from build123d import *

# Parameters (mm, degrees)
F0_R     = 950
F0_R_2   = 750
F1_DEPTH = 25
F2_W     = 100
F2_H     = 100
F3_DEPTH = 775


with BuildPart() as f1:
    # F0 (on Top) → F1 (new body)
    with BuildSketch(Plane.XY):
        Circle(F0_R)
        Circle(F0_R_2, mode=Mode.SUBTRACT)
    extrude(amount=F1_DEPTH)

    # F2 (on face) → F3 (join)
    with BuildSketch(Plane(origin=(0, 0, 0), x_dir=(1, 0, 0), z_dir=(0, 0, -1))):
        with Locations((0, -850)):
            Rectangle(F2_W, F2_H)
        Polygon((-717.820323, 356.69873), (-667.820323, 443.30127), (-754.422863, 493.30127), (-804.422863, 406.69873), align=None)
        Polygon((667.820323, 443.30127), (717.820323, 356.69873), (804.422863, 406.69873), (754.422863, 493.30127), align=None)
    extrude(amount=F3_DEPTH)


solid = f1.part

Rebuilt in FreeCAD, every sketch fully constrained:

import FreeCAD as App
import Part
import Sketcher
Q = App.Units.Quantity

doc = App.newDocument("Part")
params = doc.addObject("Spreadsheet::Sheet", "Params")
for row, (alias, value) in enumerate([
    ("sketch1_diameter", "1900 mm"),
    ("sketch1_diameter2", "1500 mm"),
    ("pad1_length", "25 mm"),
    ("sketch2_width", "100 mm"),
    ("sketch2_length", "100 mm"),
    ("pad2_length", "775 mm"),
], start=1):
    params.set(f"A{row}", alias)
    params.set(f"B{row}", "=" + value)
    params.setAlias(f"B{row}", alias)

body = doc.addObject("PartDesign::Body", "Body")

sketch1 = body.newObject("Sketcher::SketchObject", "Sketch")
sketch1.AttachmentSupport = (doc.getObject("XY_Plane"), [""])
sketch1.MapMode = "FlatFace"
sketch1.addGeometry(Part.Circle(App.Vector(0, 0, 0), App.Vector(0, 0, 1), 950), False)
sketch1.addGeometry(Part.Circle(App.Vector(0, 0, 0), App.Vector(0, 0, 1), 750), False)
sketch1.addConstraint(Sketcher.Constraint("Coincident", 0, 3, -1, 1))
sketch1.addConstraint(Sketcher.Constraint("Coincident", 1, 3, -1, 1))
sketch1.addConstraint(Sketcher.Constraint("Diameter", 0, 1900.0))
sketch1.addConstraint(Sketcher.Constraint("Diameter", 1, 1500.0))
sketch1.setExpression("Constraints[2]", "Params.sketch1_diameter")
sketch1.setExpression("Constraints[3]", "Params.sketch1_diameter2")
pad1 = body.newObject("PartDesign::Pad", "Pad")
pad1.Profile = sketch1
pad1.setExpression("Length", "Params.pad1_length")

sketch2 = body.newObject("Sketcher::SketchObject", "Sketch001")
sketch2.AttachmentSupport = (doc.getObject("XY_Plane"), [""])
sketch2.MapMode = "FlatFace"
sketch2.addGeometry(Part.LineSegment(App.Vector(-50, 800, 0), App.Vector(-50, 900, 0)), False)
sketch2.addGeometry(Part.LineSegment(App.Vector(-50, 900, 0), App.Vector(50, 900, 0)), False)
sketch2.addGeometry(Part.LineSegment(App.Vector(50, 900, 0), App.Vector(50, 800, 0)), False)
sketch2.addGeometry(Part.LineSegment(App.Vector(50, 800, 0), App.Vector(-50, 800, 0)), False)
sketch2.addGeometry(Part.LineSegment(App.Vector(-717.820323, -356.69873, 0), App.Vector(-667.820323, -443.30127, 0)), False)
sketch2.addGeometry(Part.LineSegment(App.Vector(-667.820323, -443.30127, 0), App.Vector(-754.422863, -493.30127, 0)), False)
sketch2.addGeometry(Part.LineSegment(App.Vector(-754.422863, -493.30127, 0), App.Vector(-804.422863, -406.69873, 0)), False)
sketch2.addGeometry(Part.LineSegment(App.Vector(-804.422863, -406.69873, 0), App.Vector(-717.820323, -356.69873, 0)), False)
sketch2.addGeometry(Part.LineSegment(App.Vector(667.820323, -443.30127, 0), App.Vector(717.820323, -356.69873, 0)), False)
sketch2.addGeometry(Part.LineSegment(App.Vector(717.820323, -356.69873, 0), App.Vector(804.422863, -406.69873, 0)), False)
sketch2.addGeometry(Part.LineSegment(App.Vector(804.422863, -406.69873, 0), App.Vector(754.422863, -493.30127, 0)), False)
sketch2.addGeometry(Part.LineSegment(App.Vector(754.422863, -493.30127, 0), App.Vector(667.820323, -443.30127, 0)), False)
sketch2.addConstraint(Sketcher.Constraint("Coincident", 0, 2, 1, 1))
sketch2.addConstraint(Sketcher.Constraint("Coincident", 1, 2, 2, 1))
sketch2.addConstraint(Sketcher.Constraint("Coincident", 2, 2, 3, 1))
sketch2.addConstraint(Sketcher.Constraint("Coincident", 3, 2, 0, 1))
sketch2.addConstraint(Sketcher.Constraint("Coincident", 4, 2, 5, 1))
sketch2.addConstraint(Sketcher.Constraint("Coincident", 5, 2, 6, 1))
sketch2.addConstraint(Sketcher.Constraint("Coincident", 6, 2, 7, 1))
sketch2.addConstraint(Sketcher.Constraint("Coincident", 7, 2, 4, 1))
sketch2.addConstraint(Sketcher.Constraint("Coincident", 8, 2, 9, 1))
sketch2.addConstraint(Sketcher.Constraint("Coincident", 9, 2, 10, 1))
sketch2.addConstraint(Sketcher.Constraint("Coincident", 10, 2, 11, 1))
sketch2.addConstraint(Sketcher.Constraint("Coincident", 11, 2, 8, 1))
sketch2.addConstraint(Sketcher.Constraint("Vertical", 0))
sketch2.addConstraint(Sketcher.Constraint("Horizontal", 1))
sketch2.addConstraint(Sketcher.Constraint("Vertical", 2))
sketch2.addConstraint(Sketcher.Constraint("Horizontal", 3))
sketch2.addConstraint(Sketcher.Constraint("Symmetric", 7, 2, 8, 2, -2))
sketch2.addConstraint(Sketcher.Constraint("Symmetric", 6, 2, 9, 2, -2))
sketch2.addConstraint(Sketcher.Constraint("Symmetric", 5, 2, 10, 2, -2))
sketch2.addConstraint(Sketcher.Constraint("Symmetric", 4, 2, 11, 2, -2))
sketch2.addConstraint(Sketcher.Constraint("Perpendicular", 4, 5))
sketch2.addConstraint(Sketcher.Constraint("Perpendicular", 5, 6))
sketch2.addConstraint(Sketcher.Constraint("Perpendicular", 6, 7))
sketch2.addConstraint(Sketcher.Constraint("Equal", 3, 0))
sketch2.addConstraint(Sketcher.Constraint("Equal", 4, 5))
sketch2.addConstraint(Sketcher.Constraint("DistanceX", 1, 1, 1, 2, 100.0))
sketch2.addConstraint(Sketcher.Constraint("Angle", 4, Q("-60 deg")))
sketch2.addConstraint(Sketcher.Constraint("Distance", 4, 100.0))
sketch2.addConstraint(Sketcher.Constraint("DistanceX", 0, 2, -1, 1, 50.0))
sketch2.addConstraint(Sketcher.Constraint("DistanceY", -1, 1, 0, 2, 900.0))
sketch2.addConstraint(Sketcher.Constraint("DistanceY", 4, 2, -1, 1, 443.30127))
sketch2.addConstraint(Sketcher.Constraint("DistanceX", 4, 2, -1, 1, 667.820323))
sketch2.setExpression("Constraints[25]", "Params.sketch2_width")
sketch2.setExpression("Constraints[27]", "Params.sketch2_length")
pad2 = body.newObject("PartDesign::Pad", "Pad001")
pad2.Profile = sketch2
pad2.setExpression("Length", "Params.pad2_length")
pad2.Reversed = True

doc.recompute()
